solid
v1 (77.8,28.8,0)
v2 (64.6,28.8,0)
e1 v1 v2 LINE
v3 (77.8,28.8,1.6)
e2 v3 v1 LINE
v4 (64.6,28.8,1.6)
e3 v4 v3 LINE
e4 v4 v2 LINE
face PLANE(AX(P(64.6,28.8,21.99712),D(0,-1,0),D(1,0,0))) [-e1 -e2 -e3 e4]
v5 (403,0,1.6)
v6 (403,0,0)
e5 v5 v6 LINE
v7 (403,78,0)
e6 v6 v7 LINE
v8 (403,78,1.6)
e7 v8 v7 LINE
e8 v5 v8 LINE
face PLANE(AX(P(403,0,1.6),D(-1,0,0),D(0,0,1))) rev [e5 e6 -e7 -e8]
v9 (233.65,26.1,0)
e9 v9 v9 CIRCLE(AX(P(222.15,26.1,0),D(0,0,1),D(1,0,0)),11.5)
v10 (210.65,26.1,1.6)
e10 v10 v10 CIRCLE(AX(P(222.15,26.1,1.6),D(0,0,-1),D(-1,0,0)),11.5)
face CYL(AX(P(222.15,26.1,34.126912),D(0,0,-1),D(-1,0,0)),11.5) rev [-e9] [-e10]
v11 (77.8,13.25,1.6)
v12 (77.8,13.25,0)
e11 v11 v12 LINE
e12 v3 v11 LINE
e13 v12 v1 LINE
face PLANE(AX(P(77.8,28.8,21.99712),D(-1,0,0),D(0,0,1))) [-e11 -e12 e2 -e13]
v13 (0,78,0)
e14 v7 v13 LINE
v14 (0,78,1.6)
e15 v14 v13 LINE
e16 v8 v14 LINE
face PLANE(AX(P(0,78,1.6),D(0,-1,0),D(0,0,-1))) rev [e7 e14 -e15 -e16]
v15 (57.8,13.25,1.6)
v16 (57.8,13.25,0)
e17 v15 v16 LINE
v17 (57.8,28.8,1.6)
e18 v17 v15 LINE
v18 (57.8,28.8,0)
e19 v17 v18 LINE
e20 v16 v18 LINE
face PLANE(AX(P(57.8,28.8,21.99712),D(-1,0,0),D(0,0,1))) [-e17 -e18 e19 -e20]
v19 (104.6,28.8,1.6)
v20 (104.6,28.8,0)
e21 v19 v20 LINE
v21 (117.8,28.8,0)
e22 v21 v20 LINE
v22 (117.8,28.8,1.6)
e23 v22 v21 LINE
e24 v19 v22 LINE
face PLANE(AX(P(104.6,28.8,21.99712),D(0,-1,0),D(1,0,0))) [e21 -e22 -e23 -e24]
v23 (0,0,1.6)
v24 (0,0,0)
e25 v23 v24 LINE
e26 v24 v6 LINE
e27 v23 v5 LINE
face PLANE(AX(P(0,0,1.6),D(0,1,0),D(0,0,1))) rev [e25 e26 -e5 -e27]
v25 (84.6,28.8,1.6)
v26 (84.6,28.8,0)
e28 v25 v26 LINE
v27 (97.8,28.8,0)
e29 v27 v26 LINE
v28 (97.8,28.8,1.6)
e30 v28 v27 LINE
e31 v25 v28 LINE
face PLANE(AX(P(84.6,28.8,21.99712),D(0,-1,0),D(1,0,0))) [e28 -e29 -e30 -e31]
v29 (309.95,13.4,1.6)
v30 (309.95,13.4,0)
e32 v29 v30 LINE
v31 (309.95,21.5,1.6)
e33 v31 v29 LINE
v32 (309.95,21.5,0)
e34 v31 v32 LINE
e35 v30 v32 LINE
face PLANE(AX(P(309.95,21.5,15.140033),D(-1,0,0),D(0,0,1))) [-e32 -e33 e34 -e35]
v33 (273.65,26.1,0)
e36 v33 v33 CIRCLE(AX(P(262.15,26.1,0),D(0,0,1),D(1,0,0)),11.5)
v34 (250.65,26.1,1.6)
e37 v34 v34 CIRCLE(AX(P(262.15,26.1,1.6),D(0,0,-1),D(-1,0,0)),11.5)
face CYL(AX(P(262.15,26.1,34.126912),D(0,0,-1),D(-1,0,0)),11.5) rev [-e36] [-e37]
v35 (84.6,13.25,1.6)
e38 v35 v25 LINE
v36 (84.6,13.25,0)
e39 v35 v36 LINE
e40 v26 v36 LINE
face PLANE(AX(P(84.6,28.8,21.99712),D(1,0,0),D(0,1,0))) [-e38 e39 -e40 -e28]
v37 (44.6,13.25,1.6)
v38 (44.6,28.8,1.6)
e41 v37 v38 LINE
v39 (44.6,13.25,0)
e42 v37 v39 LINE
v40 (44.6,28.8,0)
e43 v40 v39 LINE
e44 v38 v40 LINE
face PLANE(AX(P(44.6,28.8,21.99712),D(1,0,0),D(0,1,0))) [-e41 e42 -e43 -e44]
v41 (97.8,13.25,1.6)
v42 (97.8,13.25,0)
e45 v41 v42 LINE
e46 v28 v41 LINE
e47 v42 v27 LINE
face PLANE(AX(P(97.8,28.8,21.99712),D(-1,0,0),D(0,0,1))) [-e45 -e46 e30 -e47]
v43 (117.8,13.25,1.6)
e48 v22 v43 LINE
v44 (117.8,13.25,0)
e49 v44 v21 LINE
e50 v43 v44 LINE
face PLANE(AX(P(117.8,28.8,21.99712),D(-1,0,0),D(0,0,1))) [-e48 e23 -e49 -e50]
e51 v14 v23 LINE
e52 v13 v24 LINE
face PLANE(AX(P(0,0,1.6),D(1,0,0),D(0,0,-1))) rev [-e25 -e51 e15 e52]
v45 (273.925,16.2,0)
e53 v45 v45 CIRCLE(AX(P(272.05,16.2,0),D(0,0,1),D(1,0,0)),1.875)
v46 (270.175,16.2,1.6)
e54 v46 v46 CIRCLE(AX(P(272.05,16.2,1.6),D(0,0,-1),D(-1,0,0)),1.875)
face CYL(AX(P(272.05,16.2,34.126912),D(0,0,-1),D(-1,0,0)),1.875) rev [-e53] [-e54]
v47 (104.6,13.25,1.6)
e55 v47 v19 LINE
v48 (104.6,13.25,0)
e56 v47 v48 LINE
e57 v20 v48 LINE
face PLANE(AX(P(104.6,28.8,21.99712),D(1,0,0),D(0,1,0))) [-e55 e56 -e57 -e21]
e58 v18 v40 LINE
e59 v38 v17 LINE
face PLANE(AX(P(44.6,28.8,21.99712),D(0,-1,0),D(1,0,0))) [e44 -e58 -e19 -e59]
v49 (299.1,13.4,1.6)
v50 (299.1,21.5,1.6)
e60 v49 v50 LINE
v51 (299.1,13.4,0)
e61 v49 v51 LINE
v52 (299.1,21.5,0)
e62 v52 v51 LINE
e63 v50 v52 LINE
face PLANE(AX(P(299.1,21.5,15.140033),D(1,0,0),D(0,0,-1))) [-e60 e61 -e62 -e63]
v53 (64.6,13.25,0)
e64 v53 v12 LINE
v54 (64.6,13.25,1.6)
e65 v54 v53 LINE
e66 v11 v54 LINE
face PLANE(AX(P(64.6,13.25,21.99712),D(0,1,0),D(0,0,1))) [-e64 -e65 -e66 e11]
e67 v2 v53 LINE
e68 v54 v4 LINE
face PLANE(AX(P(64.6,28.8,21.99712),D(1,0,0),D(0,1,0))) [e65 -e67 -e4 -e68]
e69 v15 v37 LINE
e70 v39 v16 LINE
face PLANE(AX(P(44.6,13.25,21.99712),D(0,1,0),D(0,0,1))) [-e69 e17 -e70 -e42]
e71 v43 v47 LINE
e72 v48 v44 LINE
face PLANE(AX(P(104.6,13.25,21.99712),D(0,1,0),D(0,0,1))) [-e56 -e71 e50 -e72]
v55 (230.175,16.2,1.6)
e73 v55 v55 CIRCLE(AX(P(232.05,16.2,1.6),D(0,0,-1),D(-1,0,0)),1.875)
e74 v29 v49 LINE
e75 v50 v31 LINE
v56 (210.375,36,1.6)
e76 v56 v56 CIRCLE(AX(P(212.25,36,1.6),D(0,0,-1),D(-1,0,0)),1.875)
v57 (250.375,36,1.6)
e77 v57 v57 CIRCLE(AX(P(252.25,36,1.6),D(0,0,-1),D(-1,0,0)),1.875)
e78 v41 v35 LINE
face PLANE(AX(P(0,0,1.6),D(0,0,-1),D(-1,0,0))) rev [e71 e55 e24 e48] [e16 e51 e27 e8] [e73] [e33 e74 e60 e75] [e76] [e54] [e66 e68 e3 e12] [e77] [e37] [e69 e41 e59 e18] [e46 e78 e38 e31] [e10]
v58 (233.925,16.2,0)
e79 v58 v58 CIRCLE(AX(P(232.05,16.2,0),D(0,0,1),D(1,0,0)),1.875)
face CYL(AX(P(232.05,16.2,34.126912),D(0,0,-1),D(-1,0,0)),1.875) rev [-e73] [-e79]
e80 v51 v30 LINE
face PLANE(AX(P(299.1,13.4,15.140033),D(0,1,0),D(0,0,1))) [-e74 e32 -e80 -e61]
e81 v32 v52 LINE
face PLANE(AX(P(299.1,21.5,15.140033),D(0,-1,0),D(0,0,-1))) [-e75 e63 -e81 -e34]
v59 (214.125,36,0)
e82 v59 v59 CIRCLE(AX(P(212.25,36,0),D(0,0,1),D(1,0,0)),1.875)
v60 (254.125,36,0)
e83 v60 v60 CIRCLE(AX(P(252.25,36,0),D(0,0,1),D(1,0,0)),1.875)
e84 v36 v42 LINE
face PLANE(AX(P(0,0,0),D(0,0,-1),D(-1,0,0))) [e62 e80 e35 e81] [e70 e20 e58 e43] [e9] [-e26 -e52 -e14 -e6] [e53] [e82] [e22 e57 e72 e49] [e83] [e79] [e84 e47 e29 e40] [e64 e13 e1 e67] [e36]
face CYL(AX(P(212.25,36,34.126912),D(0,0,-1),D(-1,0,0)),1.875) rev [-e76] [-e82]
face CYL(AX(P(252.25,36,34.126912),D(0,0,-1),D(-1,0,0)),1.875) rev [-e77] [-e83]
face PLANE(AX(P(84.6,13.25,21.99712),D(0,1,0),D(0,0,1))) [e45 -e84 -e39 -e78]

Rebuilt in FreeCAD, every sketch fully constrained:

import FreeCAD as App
import Part
import Sketcher

doc = App.newDocument("Part")
body = doc.addObject("PartDesign::Body", "Body")

sketch1 = body.newObject("Sketcher::SketchObject", "Sketch")
sketch1.AttachmentSupport = (doc.getObject("XY_Plane"), [""])
sketch1.MapMode = "FlatFace"
sketch1.addGeometry([
    Part.LineSegment(App.Vector(0, 78, 0), App.Vector(0, 0, 0)),
    Part.LineSegment(App.Vector(0, 0, 0), App.Vector(403, 0, 0)),
    Part.LineSegment(App.Vector(403, 0, 0), App.Vector(403, 78, 0)),
    Part.LineSegment(App.Vector(403, 78, 0), App.Vector(0, 78, 0)),
], False)
sketch1.addConstraint([
    Sketcher.Constraint("Coincident", 0, 2, 1, 1),
    Sketcher.Constraint("Coincident", 1, 2, 2, 1),
    Sketcher.Constraint("Coincident", 2, 2, 3, 1),
    Sketcher.Constraint("Coincident", 3, 2, 0, 1),
    Sketcher.Constraint("Vertical", 0),
    Sketcher.Constraint("Horizontal", 1),
    Sketcher.Constraint("Vertical", 2),
    Sketcher.Constraint("Horizontal", 3),
    Sketcher.Constraint("Coincident", 0, 2, -1, 1),
    Sketcher.Constraint("DistanceX", 1, 1, 1, 2, 403.0),
    Sketcher.Constraint("DistanceY", 0, 2, 0, 1, 78.0),
])
pad1 = body.newObject("PartDesign::Pad", "Pad")
pad1.Profile = sketch1
pad1.Length = 1.6

sketch2 = body.newObject("Sketcher::SketchObject", "Sketch001")
sketch2.AttachmentSupport = (doc.getObject("XY_Plane"), [""])
sketch2.MapMode = "FlatFace"
sketch2.addGeometry([
    Part.Circle(App.Vector(222.2, 26.1, 0), App.Vector(0, 0, 1), 11.5),
    Part.Circle(App.Vector(212.2, 36, 0), App.Vector(0, 0, 1), 1.9),
    Part.Circle(App.Vector(232.1, 16.2, 0), App.Vector(0, 0, 1), 1.9),
    Part.Circle(App.Vector(262.1, 26.1, 0), App.Vector(0, 0, 1), 11.5),
    Part.Circle(App.Vector(252.2, 36, 0), App.Vector(0, 0, 1), 1.9),
    Part.Circle(App.Vector(272.1, 16.2, 0), App.Vector(0, 0, 1), 1.9),
], False)
sketch2.addConstraint([
    Sketcher.Constraint("Equal", 1, 2),
    Sketcher.Constraint("Equal", 0, 3),
    Sketcher.Constraint("Equal", 2, 4),
    Sketcher.Constraint("Equal", 4, 5),
    Sketcher.Constraint("Horizontal", 0, 3, 3, 3),
    Sketcher.Constraint("Horizontal", 1, 3, 4, 3),
    Sketcher.Constraint("Horizontal", 2, 3, 5, 3),
    Sketcher.Constraint("Diameter", 0, 23.0),
    Sketcher.Constraint("Diameter", 1, 3.75),
    Sketcher.Constraint("DistanceY", -1, 1, 1, 3, 36.0),
    Sketcher.Constraint("DistanceX", 0, 3, 3, 3, 40.0),
    Sketcher.Constraint("DistanceX", 1, 3, 4, 3, 40.0),
    Sketcher.Constraint("DistanceX", 2, 3, 5, 3, 40.0),
    Sketcher.Constraint("DistanceY", -1, 1, 0, 3, 26.1),
    Sketcher.Constraint("DistanceY", -1, 1, 2, 3, 16.2),
    Sketcher.Constraint("DistanceX", 1, 3, 0, 3, 9.9),
    Sketcher.Constraint("DistanceX", 0, 3, 2, 3, 9.9),
    Sketcher.Constraint("DistanceX", -1, 1, 0, 3, 222.15),
])
pocket1 = body.newObject("PartDesign::Pocket", "Pocket")
pocket1.Profile = sketch2
pocket1.Length = 1.6
pocket1.Reversed = True

sketch3 = body.newObject("Sketcher::SketchObject", "Sketch002")
sketch3.AttachmentSupport = (doc.getObject("XY_Plane"), [""])
sketch3.MapMode = "FlatFace"
sketch3.addGeometry([
    Part.LineSegment(App.Vector(65, 29, 0), App.Vector(65, 13, 0)),
    Part.LineSegment(App.Vector(65, 13, 0), App.Vector(78, 13, 0)),
    Part.LineSegment(App.Vector(78, 13, 0), App.Vector(78, 29, 0)),
    Part.LineSegment(App.Vector(78, 29, 0), App.Vector(65, 29, 0)),
    Part.LineSegment(App.Vector(45, 29, 0), App.Vector(45, 13, 0)),
    Part.LineSegment(App.Vector(45, 13, 0), App.Vector(58, 13, 0)),
    Part.LineSegment(App.Vector(58, 13, 0), App.Vector(58, 29, 0)),
    Part.LineSegment(App.Vector(58, 29, 0), App.Vector(45, 29, 0)),
    Part.LineSegment(App.Vector(85, 29, 0), App.Vector(85, 13, 0)),
    Part.LineSegment(App.Vector(85, 13, 0), App.Vector(98, 13, 0)),
    Part.LineSegment(App.Vector(98, 13, 0), App.Vector(98, 29, 0)),
    Part.LineSegment(App.Vector(98, 29, 0), App.Vector(85, 29, 0)),
    Part.LineSegment(App.Vector(105, 29, 0), App.Vector(105, 13, 0)),
    Part.LineSegment(App.Vector(105, 13, 0), App.Vector(118, 13, 0)),
    Part.LineSegment(App.Vector(118, 13, 0), App.Vector(118, 29, 0)),
    Part.LineSegment(App.Vector(118, 29, 0), App.Vector(105, 29, 0)),
], False)
sketch3.addConstraint([
    Sketcher.Constraint("Coincident", 0, 2, 1, 1),
    Sketcher.Constraint("Coincident", 1, 2, 2, 1),
    Sketcher.Constraint("Coincident", 2, 2, 3, 1),
    Sketcher.Constraint("Coincident", 3, 2, 0, 1),
    Sketcher.Constraint("Coincident", 4, 2, 5, 1),
    Sketcher.Constraint("Coincident", 5, 2, 6, 1),
    Sketcher.Constraint("Coincident", 6, 2, 7, 1),
    Sketcher.Constraint("Coincident", 7, 2, 4, 1),
    Sketcher.Constraint("Coincident", 8, 2, 9, 1),
    Sketcher.Constraint("Coincident", 9, 2, 10, 1),
    Sketcher.Constraint("Coincident", 10, 2, 11, 1),
    Sketcher.Constraint("Coincident", 11, 2, 8, 1),
    Sketcher.Constraint("Coincident", 12, 2, 13, 1),
    Sketcher.Constraint("Coincident", 13, 2, 14, 1),
    Sketcher.Constraint("Coincident", 14, 2, 15, 1),
    Sketcher.Constraint("Coincident", 15, 2, 12, 1),
    Sketcher.Constraint("Vertical", 0),
    Sketcher.Constraint("Horizontal", 1),
    Sketcher.Constraint("Vertical", 2),
    Sketcher.Constraint("Horizontal", 3),
    Sketcher.Constraint("Vertical", 4),
    Sketcher.Constraint("Horizontal", 5),
    Sketcher.Constraint("Vertical", 6),
    Sketcher.Constraint("Horizontal", 7),
    Sketcher.Constraint("Vertical", 8),
    Sketcher.Constraint("Horizontal", 9),
    Sketcher.Constraint("Vertical", 10),
    Sketcher.Constraint("Horizontal", 11),
    Sketcher.Constraint("Vertical", 12),
    Sketcher.Constraint("Horizontal", 13),
    Sketcher.Constraint("Vertical", 14),
    Sketcher.Constraint("Horizontal", 15),
    Sketcher.Constraint("Horizontal", 1, 2, 4, 2),
    Sketcher.Constraint("Horizontal", 3, 2, 6, 2),
    Sketcher.Constraint("Horizontal", 5, 2, 8, 2),
    Sketcher.Constraint("Horizontal", 7, 2, 10, 2),
    Sketcher.Constraint("Horizontal", 9, 2, 12, 2),
    Sketcher.Constraint("Horizontal", 11, 2, 14, 2),
    Sketcher.Constraint("Equal", 3, 5),
    Sketcher.Constraint("Equal", 7, 9),
    Sketcher.Constraint("Equal", 11, 13),
    Sketcher.Constraint("DistanceX", 1, 1, 1, 2, 13.2),
    Sketcher.Constraint("DistanceX", 4, 2, 0, 2, 20.0),
    Sketcher.Constraint("DistanceX", 0, 2, 8, 2, 20.0),
    Sketcher.Constraint("DistanceX", 8, 2, 12, 2, 20.0),
    Sketcher.Constraint("DistanceY", 0, 2, 0, 1, 15.55),
    Sketcher.Constraint("DistanceX", -1, 1, 0, 2, 64.6),
    Sketcher.Constraint("DistanceY", -1, 1, 2, 2, 28.8),
])
pocket2 = body.newObject("PartDesign::Pocket", "Pocket001")
pocket2.Profile = sketch3
pocket2.Length = 1.6
pocket2.Reversed = True

sketch4 = body.newObject("Sketcher::SketchObject", "Sketch003")
sketch4.AttachmentSupport = (doc.getObject("XY_Plane"), [""])
sketch4.MapMode = "FlatFace"
sketch4.addGeometry([
    Part.LineSegment(App.Vector(299, 22, 0), App.Vector(299, 13, 0)),
    Part.LineSegment(App.Vector(299, 13, 0), App.Vector(310, 13, 0)),
    Part.LineSegment(App.Vector(310, 13, 0), App.Vector(310, 22, 0)),
    Part.LineSegment(App.Vector(310, 22, 0), App.Vector(299, 22, 0)),
], False)
sketch4.addConstraint([
    Sketcher.Constraint("Coincident", 0, 2, 1, 1),
    Sketcher.Constraint("Coincident", 1, 2, 2, 1),
    Sketcher.Constraint("Coincident", 2, 2, 3, 1),
    Sketcher.Constraint("Coincident", 3, 2, 0, 1),
    Sketcher.Constraint("Vertical", 0),
    Sketcher.Constraint("Horizontal", 1),
    Sketcher.Constraint("Vertical", 2),
    Sketcher.Constraint("Horizontal", 3),
    Sketcher.Constraint("DistanceY", 0, 2, 0, 1, 8.1),
    Sketcher.Constraint("DistanceX", 1, 1, 1, 2, 10.85),
    Sketcher.Constraint("DistanceX", -1, 1, 0, 2, 299.1),
    Sketcher.Constraint("DistanceY", -1, 1, 0, 2, 13.4),
])
pocket3 = body.newObject("PartDesign::Pocket", "Pocket002")
pocket3.Profile = sketch4
pocket3.Length = 1.6
pocket3.Reversed = True

doc.recompute()
